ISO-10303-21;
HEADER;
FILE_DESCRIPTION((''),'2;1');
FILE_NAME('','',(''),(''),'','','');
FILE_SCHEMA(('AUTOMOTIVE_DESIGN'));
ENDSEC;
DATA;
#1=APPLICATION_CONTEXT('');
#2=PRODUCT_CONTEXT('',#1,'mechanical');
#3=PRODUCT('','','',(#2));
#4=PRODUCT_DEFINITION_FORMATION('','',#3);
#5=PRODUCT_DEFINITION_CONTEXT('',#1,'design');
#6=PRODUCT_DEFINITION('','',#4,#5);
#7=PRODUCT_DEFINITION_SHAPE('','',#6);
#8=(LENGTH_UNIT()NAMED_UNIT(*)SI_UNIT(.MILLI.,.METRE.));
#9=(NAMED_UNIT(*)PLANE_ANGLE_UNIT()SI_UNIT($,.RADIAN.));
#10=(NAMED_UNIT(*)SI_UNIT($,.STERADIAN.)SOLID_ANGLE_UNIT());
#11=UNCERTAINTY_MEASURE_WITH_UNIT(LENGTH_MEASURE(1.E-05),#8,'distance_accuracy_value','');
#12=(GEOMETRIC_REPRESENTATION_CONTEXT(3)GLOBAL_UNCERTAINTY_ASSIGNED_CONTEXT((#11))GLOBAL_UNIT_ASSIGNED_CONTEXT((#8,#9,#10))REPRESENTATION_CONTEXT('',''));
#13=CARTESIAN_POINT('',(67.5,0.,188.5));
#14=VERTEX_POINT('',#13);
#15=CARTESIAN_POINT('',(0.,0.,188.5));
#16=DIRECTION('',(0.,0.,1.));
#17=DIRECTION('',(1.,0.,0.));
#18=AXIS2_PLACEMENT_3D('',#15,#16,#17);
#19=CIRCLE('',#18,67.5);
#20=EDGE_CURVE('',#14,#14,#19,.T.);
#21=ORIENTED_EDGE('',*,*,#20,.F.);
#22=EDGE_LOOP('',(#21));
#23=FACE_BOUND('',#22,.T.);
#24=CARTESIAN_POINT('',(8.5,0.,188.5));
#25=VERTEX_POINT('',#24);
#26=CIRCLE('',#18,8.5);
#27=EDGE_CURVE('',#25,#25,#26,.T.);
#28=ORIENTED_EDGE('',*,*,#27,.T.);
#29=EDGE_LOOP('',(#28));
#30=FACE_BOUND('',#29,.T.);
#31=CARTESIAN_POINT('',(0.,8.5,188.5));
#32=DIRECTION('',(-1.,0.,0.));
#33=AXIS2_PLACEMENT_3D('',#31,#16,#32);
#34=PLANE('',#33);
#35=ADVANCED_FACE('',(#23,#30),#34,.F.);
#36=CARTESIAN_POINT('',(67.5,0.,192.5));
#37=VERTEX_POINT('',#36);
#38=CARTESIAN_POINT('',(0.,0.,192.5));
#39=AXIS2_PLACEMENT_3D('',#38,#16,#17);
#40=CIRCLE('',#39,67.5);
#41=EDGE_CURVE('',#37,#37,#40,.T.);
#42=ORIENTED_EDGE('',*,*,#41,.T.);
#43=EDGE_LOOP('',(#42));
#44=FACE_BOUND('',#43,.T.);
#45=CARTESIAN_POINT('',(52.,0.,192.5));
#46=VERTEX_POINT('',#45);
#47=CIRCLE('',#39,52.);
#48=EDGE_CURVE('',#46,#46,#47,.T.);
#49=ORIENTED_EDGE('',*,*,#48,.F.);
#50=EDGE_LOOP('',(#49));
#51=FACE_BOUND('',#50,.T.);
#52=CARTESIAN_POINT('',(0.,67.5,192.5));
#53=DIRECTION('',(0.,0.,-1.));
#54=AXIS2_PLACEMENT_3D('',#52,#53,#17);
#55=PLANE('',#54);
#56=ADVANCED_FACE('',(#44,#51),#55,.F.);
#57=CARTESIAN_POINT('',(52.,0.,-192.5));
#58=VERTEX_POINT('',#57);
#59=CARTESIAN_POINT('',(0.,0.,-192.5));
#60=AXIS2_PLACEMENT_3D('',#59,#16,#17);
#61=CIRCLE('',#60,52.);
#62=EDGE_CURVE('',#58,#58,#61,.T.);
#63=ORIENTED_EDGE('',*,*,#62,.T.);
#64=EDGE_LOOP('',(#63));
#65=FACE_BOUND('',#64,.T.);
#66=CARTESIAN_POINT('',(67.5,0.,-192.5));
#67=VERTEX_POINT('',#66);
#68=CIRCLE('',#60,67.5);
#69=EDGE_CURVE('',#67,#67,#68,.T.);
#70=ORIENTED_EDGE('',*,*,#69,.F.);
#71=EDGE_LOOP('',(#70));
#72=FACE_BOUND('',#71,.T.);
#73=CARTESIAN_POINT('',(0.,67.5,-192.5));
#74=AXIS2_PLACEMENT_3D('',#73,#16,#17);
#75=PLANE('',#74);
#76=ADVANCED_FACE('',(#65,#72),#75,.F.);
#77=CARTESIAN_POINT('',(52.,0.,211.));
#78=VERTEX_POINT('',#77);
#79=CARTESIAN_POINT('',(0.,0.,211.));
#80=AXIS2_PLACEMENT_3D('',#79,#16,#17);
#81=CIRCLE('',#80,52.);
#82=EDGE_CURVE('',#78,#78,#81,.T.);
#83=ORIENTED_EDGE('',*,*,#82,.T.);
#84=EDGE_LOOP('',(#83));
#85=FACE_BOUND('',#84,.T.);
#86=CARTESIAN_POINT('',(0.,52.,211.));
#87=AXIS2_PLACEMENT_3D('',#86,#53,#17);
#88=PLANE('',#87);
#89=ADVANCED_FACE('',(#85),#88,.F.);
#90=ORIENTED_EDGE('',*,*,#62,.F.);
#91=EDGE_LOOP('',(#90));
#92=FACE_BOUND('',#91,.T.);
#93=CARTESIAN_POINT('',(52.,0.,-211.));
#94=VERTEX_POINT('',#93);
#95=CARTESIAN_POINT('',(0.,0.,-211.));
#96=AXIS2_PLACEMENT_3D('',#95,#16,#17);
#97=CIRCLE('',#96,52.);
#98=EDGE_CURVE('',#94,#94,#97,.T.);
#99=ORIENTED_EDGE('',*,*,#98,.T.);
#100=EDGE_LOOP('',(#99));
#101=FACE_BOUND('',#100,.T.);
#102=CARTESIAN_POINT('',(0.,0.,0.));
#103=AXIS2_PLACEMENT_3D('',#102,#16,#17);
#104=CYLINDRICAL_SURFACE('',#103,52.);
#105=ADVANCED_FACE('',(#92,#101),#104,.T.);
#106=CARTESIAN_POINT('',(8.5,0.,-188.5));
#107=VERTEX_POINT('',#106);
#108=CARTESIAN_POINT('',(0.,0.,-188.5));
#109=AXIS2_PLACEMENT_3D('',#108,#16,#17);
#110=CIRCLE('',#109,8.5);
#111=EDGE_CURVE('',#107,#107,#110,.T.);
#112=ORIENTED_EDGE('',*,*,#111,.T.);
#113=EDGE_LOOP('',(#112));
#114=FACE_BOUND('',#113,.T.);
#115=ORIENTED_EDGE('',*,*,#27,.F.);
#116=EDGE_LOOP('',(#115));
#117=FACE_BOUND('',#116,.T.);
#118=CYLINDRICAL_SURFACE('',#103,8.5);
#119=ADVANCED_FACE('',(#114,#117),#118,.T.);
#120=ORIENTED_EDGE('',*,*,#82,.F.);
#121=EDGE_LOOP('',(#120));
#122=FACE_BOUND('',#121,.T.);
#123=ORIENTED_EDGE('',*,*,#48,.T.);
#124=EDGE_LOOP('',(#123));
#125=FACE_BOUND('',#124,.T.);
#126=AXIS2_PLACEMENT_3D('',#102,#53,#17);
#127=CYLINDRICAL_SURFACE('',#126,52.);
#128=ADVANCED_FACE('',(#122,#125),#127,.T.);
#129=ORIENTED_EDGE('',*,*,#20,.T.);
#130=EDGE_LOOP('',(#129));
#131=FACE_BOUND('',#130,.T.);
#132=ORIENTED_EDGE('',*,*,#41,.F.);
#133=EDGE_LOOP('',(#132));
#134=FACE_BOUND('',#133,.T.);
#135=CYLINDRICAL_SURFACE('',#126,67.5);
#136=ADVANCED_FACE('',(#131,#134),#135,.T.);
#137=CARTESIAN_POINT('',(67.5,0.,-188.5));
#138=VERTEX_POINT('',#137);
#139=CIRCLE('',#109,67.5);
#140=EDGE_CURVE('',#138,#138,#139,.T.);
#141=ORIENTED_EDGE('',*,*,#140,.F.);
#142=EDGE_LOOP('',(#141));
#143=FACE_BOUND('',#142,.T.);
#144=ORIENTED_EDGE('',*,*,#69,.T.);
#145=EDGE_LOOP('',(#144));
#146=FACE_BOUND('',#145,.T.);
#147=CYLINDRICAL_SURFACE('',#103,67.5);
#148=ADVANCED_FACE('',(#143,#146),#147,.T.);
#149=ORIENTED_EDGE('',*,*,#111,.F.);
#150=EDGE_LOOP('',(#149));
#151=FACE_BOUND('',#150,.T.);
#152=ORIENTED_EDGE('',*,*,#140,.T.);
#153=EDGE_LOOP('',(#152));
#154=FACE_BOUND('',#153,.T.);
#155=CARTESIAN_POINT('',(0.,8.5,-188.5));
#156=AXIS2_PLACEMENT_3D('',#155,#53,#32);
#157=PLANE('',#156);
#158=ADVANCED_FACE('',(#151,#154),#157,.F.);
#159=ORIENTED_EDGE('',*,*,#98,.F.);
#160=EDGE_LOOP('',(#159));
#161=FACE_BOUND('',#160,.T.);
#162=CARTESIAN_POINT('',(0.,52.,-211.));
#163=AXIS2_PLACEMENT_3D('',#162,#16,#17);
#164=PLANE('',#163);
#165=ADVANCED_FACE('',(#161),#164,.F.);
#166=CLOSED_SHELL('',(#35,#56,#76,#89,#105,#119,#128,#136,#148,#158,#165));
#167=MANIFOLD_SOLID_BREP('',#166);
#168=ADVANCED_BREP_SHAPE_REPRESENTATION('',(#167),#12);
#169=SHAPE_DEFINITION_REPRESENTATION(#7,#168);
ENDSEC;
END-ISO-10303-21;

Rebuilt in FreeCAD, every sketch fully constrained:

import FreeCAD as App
import Part
import Sketcher
from FreeCAD import Vector


def add_polygon(sketch, points):
    """Adds a closed chain of lines whose ends are joined by coincident constraints."""
    first, n = sketch.GeometryCount, len(points)
    for a, b in zip(points, points[1:] + points[:1]):
        sketch.addGeometry(Part.LineSegment(App.Vector(*a, 0), App.Vector(*b, 0)), False)
    for i in range(n):
        sketch.addConstraint(Sketcher.Constraint("Coincident", first + i, 2, first + (i + 1) % n, 1))

doc = App.newDocument("Part")
body = doc.addObject("PartDesign::Body", "Body")

sketch1 = body.newObject("Sketcher::SketchObject", "Sketch")
sketch1.AttachmentSupport = (doc.getObject("YZ_Plane"), [""])
sketch1.MapMode = "FlatFace"
add_polygon(sketch1, [(8.5, -188.5), (8.5, 0), (0, 0), (0, -211), (52, -211), (52, -192.5), (67.5, -192.5), (67.5, -188.5)])
sketch1.addConstraint([
    Sketcher.Constraint("Vertical", 0),
    Sketcher.Constraint("Horizontal", 1),
    Sketcher.Constraint("Vertical", 2),
    Sketcher.Constraint("Horizontal", 3),
    Sketcher.Constraint("Vertical", 4),
    Sketcher.Constraint("Horizontal", 5),
    Sketcher.Constraint("Vertical", 6),
    Sketcher.Constraint("Horizontal", 7),
    Sketcher.Constraint("Coincident", 1, 2, -1, 1),
    Sketcher.Constraint("DistanceX", 3, 1, 3, 2, 52.0),
    Sketcher.Constraint("DistanceX", 7, 2, 7, 1, 59.0),
    Sketcher.Constraint("DistanceY", 2, 2, 2, 1, 211.0),
    Sketcher.Constraint("DistanceY", 6, 1, 6, 2, 4.0),
    Sketcher.Constraint("DistanceX", 1, 2, 1, 1, 8.5),
    Sketcher.Constraint("DistanceY", 0, 1, 0, 2, 188.5),
])
revolution = body.newObject("PartDesign::Revolution", "Revolution")
revolution.Profile = sketch1
revolution.ReferenceAxis = (sketch1, ["V_Axis"])
revolution.Angle = 360
doc.recompute()

mirrored = body.newObject("PartDesign::Mirrored", "Mirrored")
mirrored.Originals = [revolution]
mirrored.MirrorPlane = (doc.getObject("XY_Plane"), [""])
body.Tip = mirrored

doc.recompute()
